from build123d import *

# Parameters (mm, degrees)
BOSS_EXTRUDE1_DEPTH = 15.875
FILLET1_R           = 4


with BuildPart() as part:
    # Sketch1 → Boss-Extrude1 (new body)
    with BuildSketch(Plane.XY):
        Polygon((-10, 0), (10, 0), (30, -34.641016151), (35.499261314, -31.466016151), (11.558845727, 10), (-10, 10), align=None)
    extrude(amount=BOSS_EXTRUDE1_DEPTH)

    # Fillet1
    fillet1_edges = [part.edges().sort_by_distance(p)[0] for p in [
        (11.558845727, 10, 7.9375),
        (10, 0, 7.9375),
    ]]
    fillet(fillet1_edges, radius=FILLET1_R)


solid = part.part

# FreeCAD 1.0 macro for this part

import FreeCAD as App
import Part
import Sketcher
Q = App.Units.Quantity


def edges_at(feature, points):
    """Names of the edges that pass closest to the given points."""
    edges = feature.Shape.Edges
    near = lambda p: min(range(len(edges)), key=lambda i: edges[i].distToShape(Part.Vertex(*p))[0])
    return sorted({f"Edge{near(p) + 1}" for p in points})

doc = App.newDocument("Part")
body = doc.addObject("PartDesign::Body", "Body")

sketch1 = body.newObject("Sketcher::SketchObject", "Sketch")
sketch1.AttachmentSupport = (doc.getObject("XY_Plane"), [""])
sketch1.MapMode = "FlatFace"
sketch1.addGeometry([
    Part.LineSegment(App.Vector(-10, 0, 0), App.Vector(10, 0, 0)),
    Part.LineSegment(App.Vector(10, 0, 0), App.Vector(30, -35, 0)),
    Part.LineSegment(App.Vector(30, -35, 0), App.Vector(35, -31, 0)),
    Part.LineSegment(App.Vector(35, -31, 0), App.Vector(12, 10, 0)),
    Part.LineSegment(App.Vector(12, 10, 0), App.Vector(-10, 10, 0)),
    Part.LineSegment(App.Vector(-10, 10, 0), App.Vector(-10, 0, 0)),
], False)
sketch1.addConstraint([
    Sketcher.Constraint("Coincident", 0, 2, 1, 1),
    Sketcher.Constraint("Coincident", 1, 2, 2, 1),
    Sketcher.Constraint("Coincident", 2, 2, 3, 1),
    Sketcher.Constraint("Coincident", 3, 2, 4, 1),
    Sketcher.Constraint("Coincident", 4, 2, 5, 1),
    Sketcher.Constraint("Coincident", 5, 2, 0, 1),
    Sketcher.Constraint("Horizontal", 0),
    Sketcher.Constraint("Horizontal", 4),
    Sketcher.Constraint("Vertical", 5),
    Sketcher.Constraint("Symmetric", 0, 2, 5, 2, -1, 1),
    Sketcher.Constraint("Perpendicular", 1, 2),
    Sketcher.Constraint("Perpendicular", 2, 3),
    Sketcher.Constraint("DistanceX", 0, 1, 0, 2, Q("20 mm")),
    Sketcher.Constraint("DistanceY", 5, 2, 5, 1, Q("10 mm")),
    Sketcher.Constraint("Angle", 1, Q("-60 deg")),
    Sketcher.Constraint("Distance", 1, Q("40 mm")),
    Sketcher.Constraint("Distance", 2, Q("6.35 mm")),
])
pad1 = body.newObject("PartDesign::Pad", "Pad")
pad1.Profile = sketch1
pad1.Length = 15.875
doc.recompute()

fillet = body.newObject("PartDesign::Fillet", "Fillet")
fillet.Base = (pad1, edges_at(pad1, [(11.559, 10, 7.938), (10, 0, 7.938)]))
fillet.Radius = 4

doc.recompute()
